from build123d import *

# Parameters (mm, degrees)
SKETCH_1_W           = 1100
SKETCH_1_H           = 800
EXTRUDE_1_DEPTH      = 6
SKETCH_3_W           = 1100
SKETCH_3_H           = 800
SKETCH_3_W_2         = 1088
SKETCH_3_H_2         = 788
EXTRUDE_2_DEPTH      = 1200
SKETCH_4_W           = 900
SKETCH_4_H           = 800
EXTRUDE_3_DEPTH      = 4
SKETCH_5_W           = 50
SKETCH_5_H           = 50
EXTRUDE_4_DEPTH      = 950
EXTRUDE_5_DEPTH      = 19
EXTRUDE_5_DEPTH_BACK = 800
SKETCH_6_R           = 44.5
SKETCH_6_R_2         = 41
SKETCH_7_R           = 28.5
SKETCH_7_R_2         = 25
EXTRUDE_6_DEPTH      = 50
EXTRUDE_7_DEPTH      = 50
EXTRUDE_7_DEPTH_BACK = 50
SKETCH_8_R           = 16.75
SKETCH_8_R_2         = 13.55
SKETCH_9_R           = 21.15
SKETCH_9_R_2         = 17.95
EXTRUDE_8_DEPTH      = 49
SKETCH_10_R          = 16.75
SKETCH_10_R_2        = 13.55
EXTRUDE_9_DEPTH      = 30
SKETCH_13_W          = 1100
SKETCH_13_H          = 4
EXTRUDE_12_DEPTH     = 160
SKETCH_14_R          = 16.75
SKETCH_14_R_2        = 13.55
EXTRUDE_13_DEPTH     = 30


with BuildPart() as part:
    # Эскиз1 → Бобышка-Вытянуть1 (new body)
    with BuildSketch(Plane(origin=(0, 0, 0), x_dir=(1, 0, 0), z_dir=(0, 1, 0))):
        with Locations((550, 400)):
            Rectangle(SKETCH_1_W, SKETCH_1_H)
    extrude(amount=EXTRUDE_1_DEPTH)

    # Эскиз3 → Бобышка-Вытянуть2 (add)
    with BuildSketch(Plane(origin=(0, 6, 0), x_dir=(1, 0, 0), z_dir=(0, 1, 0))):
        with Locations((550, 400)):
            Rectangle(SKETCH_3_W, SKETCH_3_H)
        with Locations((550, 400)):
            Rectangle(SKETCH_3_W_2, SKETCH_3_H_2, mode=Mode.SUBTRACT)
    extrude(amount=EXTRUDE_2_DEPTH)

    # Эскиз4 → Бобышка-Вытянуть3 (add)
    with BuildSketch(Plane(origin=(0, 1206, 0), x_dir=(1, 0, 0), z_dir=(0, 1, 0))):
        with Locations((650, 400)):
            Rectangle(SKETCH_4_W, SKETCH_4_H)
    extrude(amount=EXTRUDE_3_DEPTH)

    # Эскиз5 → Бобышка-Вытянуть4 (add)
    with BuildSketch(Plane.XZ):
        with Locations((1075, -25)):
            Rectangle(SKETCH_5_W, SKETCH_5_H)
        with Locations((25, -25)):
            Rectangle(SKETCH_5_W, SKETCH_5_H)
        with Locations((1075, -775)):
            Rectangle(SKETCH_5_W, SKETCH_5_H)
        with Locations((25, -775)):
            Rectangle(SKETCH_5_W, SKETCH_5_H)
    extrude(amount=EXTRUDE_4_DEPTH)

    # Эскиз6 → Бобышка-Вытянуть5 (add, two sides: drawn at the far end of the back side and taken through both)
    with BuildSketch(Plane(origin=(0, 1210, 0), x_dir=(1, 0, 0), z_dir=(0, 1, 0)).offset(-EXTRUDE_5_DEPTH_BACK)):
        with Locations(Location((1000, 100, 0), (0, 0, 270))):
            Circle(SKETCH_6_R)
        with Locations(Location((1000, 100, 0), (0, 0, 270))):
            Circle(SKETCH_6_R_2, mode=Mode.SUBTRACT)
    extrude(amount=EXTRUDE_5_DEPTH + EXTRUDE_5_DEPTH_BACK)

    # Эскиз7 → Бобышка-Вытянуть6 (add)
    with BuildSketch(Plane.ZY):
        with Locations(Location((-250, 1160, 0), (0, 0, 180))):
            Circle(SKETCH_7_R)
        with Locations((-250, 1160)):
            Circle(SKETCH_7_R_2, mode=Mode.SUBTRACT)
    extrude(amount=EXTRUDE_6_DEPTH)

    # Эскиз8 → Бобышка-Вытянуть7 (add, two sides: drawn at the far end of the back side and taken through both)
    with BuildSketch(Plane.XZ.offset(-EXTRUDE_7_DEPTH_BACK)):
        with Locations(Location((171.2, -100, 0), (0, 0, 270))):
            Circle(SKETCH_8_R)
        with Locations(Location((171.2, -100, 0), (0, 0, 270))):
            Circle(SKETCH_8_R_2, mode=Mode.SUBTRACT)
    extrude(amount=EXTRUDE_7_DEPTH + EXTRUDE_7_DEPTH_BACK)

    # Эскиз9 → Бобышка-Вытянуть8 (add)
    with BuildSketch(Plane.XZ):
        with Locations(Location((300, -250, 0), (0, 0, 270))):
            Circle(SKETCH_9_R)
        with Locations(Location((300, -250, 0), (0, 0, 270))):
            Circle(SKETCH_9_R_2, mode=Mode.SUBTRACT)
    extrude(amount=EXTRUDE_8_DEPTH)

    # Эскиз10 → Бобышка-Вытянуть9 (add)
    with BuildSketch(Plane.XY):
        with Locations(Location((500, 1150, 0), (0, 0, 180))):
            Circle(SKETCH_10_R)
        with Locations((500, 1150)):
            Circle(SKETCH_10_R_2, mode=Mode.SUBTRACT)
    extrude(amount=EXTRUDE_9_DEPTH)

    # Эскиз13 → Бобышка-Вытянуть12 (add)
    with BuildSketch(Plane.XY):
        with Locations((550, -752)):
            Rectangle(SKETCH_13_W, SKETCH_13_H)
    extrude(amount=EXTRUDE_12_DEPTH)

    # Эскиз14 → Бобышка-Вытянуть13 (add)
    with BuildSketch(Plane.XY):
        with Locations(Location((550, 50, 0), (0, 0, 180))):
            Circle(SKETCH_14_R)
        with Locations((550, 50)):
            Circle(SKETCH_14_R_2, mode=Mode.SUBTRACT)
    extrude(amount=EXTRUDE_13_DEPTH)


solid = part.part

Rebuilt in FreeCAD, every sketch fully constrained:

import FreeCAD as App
import Part
import Sketcher
from FreeCAD import Vector

doc = App.newDocument("Part")
body = doc.addObject("PartDesign::Body", "Body")

# Sketch on XZ plane
sketch1 = body.newObject("Sketcher::SketchObject", "Sketch")
sketch1.AttachmentSupport = (doc.getObject("XZ_Plane"), [""])
sketch1.MapMode = "FlatFace"
sketch1.addGeometry([
    Part.LineSegment(Vector(0, -800, 0), Vector(0, 0, 0)),
    Part.LineSegment(Vector(0, 0, 0), Vector(1100, 0, 0)),
    Part.LineSegment(Vector(1100, 0, 0), Vector(1100, -800, 0)),
    Part.LineSegment(Vector(1100, -800, 0), Vector(0, -800, 0)),
], False)
sketch1.addConstraint([
    Sketcher.Constraint("Coincident", 0, 2, 1, 1),
    Sketcher.Constraint("Coincident", 1, 2, 2, 1),
    Sketcher.Constraint("Coincident", 2, 2, 3, 1),
    Sketcher.Constraint("Coincident", 3, 2, 0, 1),
    Sketcher.Constraint("Vertical", 0),
    Sketcher.Constraint("Horizontal", 1),
    Sketcher.Constraint("Vertical", 2),
    Sketcher.Constraint("Horizontal", 3),
    Sketcher.Constraint("Coincident", 0, 2, -1, 1),
    Sketcher.Constraint("DistanceX", 1, 1, 1, 2, 1100.0),
    Sketcher.Constraint("DistanceY", 0, 1, 0, 2, 800.0),
])
pad1 = body.newObject("PartDesign::Pad", "Pad")
pad1.Profile = sketch1
pad1.Length = 6
pad1.Reversed = True

# Sketch on XZ plane
sketch2 = body.newObject("Sketcher::SketchObject", "Sketch001")
sketch2.AttachmentSupport = (doc.getObject("XZ_Plane"), [""])
sketch2.MapMode = "FlatFace"
sketch2.AttachmentOffset = App.Placement(Vector(0, 0, -6), App.Rotation())
sketch2.addGeometry([
    Part.LineSegment(Vector(0, -800, 0), Vector(0, 0, 0)),  # 0
    Part.LineSegment(Vector(0, 0, 0), Vector(1100, 0, 0)),  # 1
    Part.LineSegment(Vector(1100, 0, 0), Vector(1100, -800, 0)),  # 2
    Part.LineSegment(Vector(1100, -800, 0), Vector(0, -800, 0)),  # 3
    Part.LineSegment(Vector(1094, -6, 0), Vector(6, -6, 0)),  # 4
    Part.LineSegment(Vector(6, -6, 0), Vector(6, -794, 0)),  # 5
    Part.LineSegment(Vector(6, -794, 0), Vector(1094, -794, 0)),  # 6
    Part.LineSegment(Vector(1094, -794, 0), Vector(1094, -6, 0)),  # 7
], False)
sketch2.addConstraint([
    Sketcher.Constraint("Coincident", 0, 2, 1, 1),
    Sketcher.Constraint("Coincident", 1, 2, 2, 1),
    Sketcher.Constraint("Coincident", 2, 2, 3, 1),
    Sketcher.Constraint("Coincident", 3, 2, 0, 1),
    Sketcher.Constraint("Coincident", 4, 2, 5, 1),
    Sketcher.Constraint("Coincident", 5, 2, 6, 1),
    Sketcher.Constraint("Coincident", 6, 2, 7, 1),
    Sketcher.Constraint("Coincident", 7, 2, 4, 1),
    Sketcher.Constraint("Vertical", 0),
    Sketcher.Constraint("Horizontal", 1),
    Sketcher.Constraint("Vertical", 2),
    Sketcher.Constraint("Horizontal", 3),
    Sketcher.Constraint("Horizontal", 4),
    Sketcher.Constraint("Vertical", 5),
    Sketcher.Constraint("Horizontal", 6),
    Sketcher.Constraint("Vertical", 7),
    Sketcher.Constraint("Coincident", 0, 2, -1, 1),
    Sketcher.Constraint("DistanceX", 1, 1, 1, 2, 1100.0),
    Sketcher.Constraint("DistanceX", 4, 2, 4, 1, 1088.0),
    Sketcher.Constraint("DistanceY", 0, 1, 0, 2, 800.0),
    Sketcher.Constraint("DistanceY", 5, 2, 5, 1, 788.0),
    Sketcher.Constraint("DistanceX", -1, 1, 4, 2, 6.0),
    Sketcher.Constraint("DistanceY", 4, 2, -1, 1, 6.0),
])
pad2 = body.newObject("PartDesign::Pad", "Pad001")
pad2.Profile = sketch2
pad2.Length = 1200
pad2.Reversed = True

# Sketch on XZ plane
sketch3 = body.newObject("Sketcher::SketchObject", "Sketch002")
sketch3.AttachmentSupport = (doc.getObject("XZ_Plane"), [""])
sketch3.MapMode = "FlatFace"
sketch3.AttachmentOffset = App.Placement(Vector(0, 0, -1206), App.Rotation())
sketch3.addGeometry([
    Part.LineSegment(Vector(200, -800, 0), Vector(200, 0, 0)),
    Part.LineSegment(Vector(200, 0, 0), Vector(1100, 0, 0)),
    Part.LineSegment(Vector(1100, 0, 0), Vector(1100, -800, 0)),
    Part.LineSegment(Vector(1100, -800, 0), Vector(200, -800, 0)),
], False)
sketch3.addConstraint([
    Sketcher.Constraint("Coincident", 0, 2, 1, 1),
    Sketcher.Constraint("Coincident", 1, 2, 2, 1),
    Sketcher.Constraint("Coincident", 2, 2, 3, 1),
    Sketcher.Constraint("Coincident", 3, 2, 0, 1),
    Sketcher.Constraint("Vertical", 0),
    Sketcher.Constraint("Horizontal", 1),
    Sketcher.Constraint("Vertical", 2),
    Sketcher.Constraint("Horizontal", 3),
    Sketcher.Constraint("PointOnObject", 0, 2, -1),
    Sketcher.Constraint("DistanceX", 1, 1, 1, 2, 900.0),
    Sketcher.Constraint("DistanceY", 0, 1, 0, 2, 800.0),
    Sketcher.Constraint("DistanceX", -1, 1, 0, 2, 200.0),
])
pad3 = body.newObject("PartDesign::Pad", "Pad002")
pad3.Profile = sketch3
pad3.Length = 4
pad3.Reversed = True

# Sketch on XZ plane
sketch4 = body.newObject("Sketcher::SketchObject", "Sketch003")
sketch4.AttachmentSupport = (doc.getObject("XZ_Plane"), [""])
sketch4.MapMode = "FlatFace"
sketch4.addGeometry([
    Part.LineSegment(Vector(1050, 0, 0), Vector(1050, -50, 0)),  # 0
    Part.LineSegment(Vector(1050, -50, 0), Vector(1100, -50, 0)),  # 1
    Part.LineSegment(Vector(1100, -50, 0), Vector(1100, 0, 0)),  # 2
    Part.LineSegment(Vector(1100, 0, 0), Vector(1050, 0, 0)),  # 3
    Part.LineSegment(Vector(0, 0, 0), Vector(0, -50, 0)),  # 4
    Part.LineSegment(Vector(0, -50, 0), Vector(50, -50, 0)),  # 5
    Part.LineSegment(Vector(50, -50, 0), Vector(50, 0, 0)),  # 6
    Part.LineSegment(Vector(50, 0, 0), Vector(0, 0, 0)),  # 7
    Part.LineSegment(Vector(1050, -750, 0), Vector(1050, -800, 0)),  # 8
    Part.LineSegment(Vector(1050, -800, 0), Vector(1100, -800, 0)),  # 9
    Part.LineSegment(Vector(1100, -800, 0), Vector(1100, -750, 0)),  # 10
    Part.LineSegment(Vector(1100, -750, 0), Vector(1050, -750, 0)),  # 11
    Part.LineSegment(Vector(0, -750, 0), Vector(0, -800, 0)),  # 12
    Part.LineSegment(Vector(0, -800, 0), Vector(50, -800, 0)),  # 13
    Part.LineSegment(Vector(50, -800, 0), Vector(50, -750, 0)),  # 14
    Part.LineSegment(Vector(50, -750, 0), Vector(0, -750, 0)),  # 15
], False)
sketch4.addConstraint([
    Sketcher.Constraint("Coincident", 0, 2, 1, 1),
    Sketcher.Constraint("Coincident", 1, 2, 2, 1),
    Sketcher.Constraint("Coincident", 2, 2, 3, 1),
    Sketcher.Constraint("Coincident", 3, 2, 0, 1),
    Sketcher.Constraint("Coincident", 4, 2, 5, 1),
    Sketcher.Constraint("Coincident", 5, 2, 6, 1),
    Sketcher.Constraint("Coincident", 6, 2, 7, 1),
    Sketcher.Constraint("Coincident", 7, 2, 4, 1),
    Sketcher.Constraint("Coincident", 8, 2, 9, 1),
    Sketcher.Constraint("Coincident", 9, 2, 10, 1),
    Sketcher.Constraint("Coincident", 10, 2, 11, 1),
    Sketcher.Constraint("Coincident", 11, 2, 8, 1),
    Sketcher.Constraint("Coincident", 12, 2, 13, 1),
    Sketcher.Constraint("Coincident", 13, 2, 14, 1),
    Sketcher.Constraint("Coincident", 14, 2, 15, 1),
    Sketcher.Constraint("Coincident", 15, 2, 12, 1),
    Sketcher.Constraint("Vertical", 0),
    Sketcher.Constraint("Horizontal", 1),
    Sketcher.Constraint("Vertical", 2),
    Sketcher.Constraint("Horizontal", 3),
    Sketcher.Constraint("Vertical", 4),
    Sketcher.Constraint("Horizontal", 5),
    Sketcher.Constraint("Vertical", 6),
    Sketcher.Constraint("Horizontal", 7),
    Sketcher.Constraint("Vertical", 8),
    Sketcher.Constraint("Horizontal", 9),
    Sketcher.Constraint("Vertical", 10),
    Sketcher.Constraint("Horizontal", 11),
    Sketcher.Constraint("Vertical", 12),
    Sketcher.Constraint("Horizontal", 13),
    Sketcher.Constraint("Vertical", 14),
    Sketcher.Constraint("Horizontal", 15),
    Sketcher.Constraint("Coincident", 7, 2, -1, 1),
    Sketcher.Constraint("PointOnObject", 2, 2, -1),
    Sketcher.Constraint("PointOnObject", 12, 2, -2),
    Sketcher.Constraint("Horizontal", 1, 2, 4, 2),
    Sketcher.Constraint("Horizontal", 9, 2, 12, 2),
    Sketcher.Constraint("Horizontal", 11, 2, 14, 2),
    Sketcher.Constraint("Vertical", 3, 2, 8, 2),
    Sketcher.Constraint("Vertical", 2, 2, 9, 2),
    Sketcher.Constraint("Vertical", 6, 2, 13, 2),
    Sketcher.Constraint("Equal", 3, 5),
    Sketcher.Constraint("Equal", 15, 0),
    Sketcher.Constraint("Equal", 6, 8),
    Sketcher.Constraint("DistanceX", 1, 1, 1, 2, 50.0),
    Sketcher.Constraint("DistanceX", -1, 1, 0, 2, 1050.0),
    Sketcher.Constraint("DistanceY", 8, 2, -1, 1, 800.0),
])
pad4 = body.newObject("PartDesign::Pad", "Pad003")
pad4.Profile = sketch4
pad4.Length = 950

# Sketch on XZ plane
sketch5 = body.newObject("Sketcher::SketchObject", "Sketch004")
sketch5.AttachmentSupport = (doc.getObject("XZ_Plane"), [""])
sketch5.MapMode = "FlatFace"
sketch5.AttachmentOffset = App.Placement(Vector(0, 0, -1210), App.Rotation())
sketch5.addGeometry([
    Part.Circle(Vector(1000, -100, 0), Vector(0, 0, 1), 44),
    Part.Circle(Vector(1000, -100, 0), Vector(0, 0, 1), 41),
], False)
sketch5.addConstraint([
    Sketcher.Constraint("Coincident", 1, 3, 0, 3),
    Sketcher.Constraint("Diameter", 0, 89.0),
    Sketcher.Constraint("Diameter", 1, 82.0),
    Sketcher.Constraint("DistanceX", -1, 1, 0, 3, 1000.0),
    Sketcher.Constraint("DistanceY", 0, 3, -1, 1, 100.0),
])
pad5 = body.newObject("PartDesign::Pad", "Pad004")
pad5.Profile = sketch5
pad5.Type = "TwoLengths"
pad5.Length = 19
pad5.Length2 = 800
pad5.Reversed = True

# Sketch on YZ plane
sketch6 = body.newObject("Sketcher::SketchObject", "Sketch005")
sketch6.AttachmentSupport = (doc.getObject("YZ_Plane"), [""])
sketch6.MapMode = "FlatFace"
sketch6.addGeometry([
    Part.Circle(Vector(1160, -250, 0), Vector(0, 0, 1), 28),
    Part.Circle(Vector(1160, -250, 0), Vector(0, 0, 1), 25),
], False)
sketch6.addConstraint([
    Sketcher.Constraint("Coincident", 1, 3, 0, 3),
    Sketcher.Constraint("Diameter", 0, 57.0),
    Sketcher.Constraint("Diameter", 1, 50.0),
    Sketcher.Constraint("DistanceX", -1, 1, 0, 3, 1160.0),
    Sketcher.Constraint("DistanceY", 0, 3, -1, 1, 250.0),
])
pad6 = body.newObject("PartDesign::Pad", "Pad005")
pad6.Profile = sketch6
pad6.Length = 50
pad6.Reversed = True

# Sketch on XZ plane
sketch7 = body.newObject("Sketcher::SketchObject", "Sketch006")
sketch7.AttachmentSupport = (doc.getObject("XZ_Plane"), [""])
sketch7.MapMode = "FlatFace"
sketch7.addGeometry([
    Part.Circle(Vector(171, -100, 0), Vector(0, 0, 1), 17),
    Part.Circle(Vector(171, -100, 0), Vector(0, 0, 1), 14),
], False)
sketch7.addConstraint([
    Sketcher.Constraint("Coincident", 1, 3, 0, 3),
    Sketcher.Constraint("Diameter", 0, 33.5),
    Sketcher.Constraint("Diameter", 1, 27.1),
    Sketcher.Constraint("DistanceY", 0, 3, -1, 1, 100.0),
    Sketcher.Constraint("DistanceX", -1, 1, 0, 3, 171.2),
])
pad7 = body.newObject("PartDesign::Pad", "Pad006")
pad7.Profile = sketch7
pad7.Type = "TwoLengths"
pad7.Length = 50
pad7.Length2 = 50

# Sketch on XZ plane
sketch8 = body.newObject("Sketcher::SketchObject", "Sketch007")
sketch8.AttachmentSupport = (doc.getObject("XZ_Plane"), [""])
sketch8.MapMode = "FlatFace"
sketch8.addGeometry([
    Part.Circle(Vector(300, -250, 0), Vector(0, 0, 1), 21),
    Part.Circle(Vector(300, -250, 0), Vector(0, 0, 1), 18),
], False)
sketch8.addConstraint([
    Sketcher.Constraint("Coincident", 1, 3, 0, 3),
    Sketcher.Constraint("Diameter", 0, 42.3),
    Sketcher.Constraint("Diameter", 1, 35.9),
    Sketcher.Constraint("DistanceX", -1, 1, 0, 3, 300.0),
    Sketcher.Constraint("DistanceY", 0, 3, -1, 1, 250.0),
])
pad8 = body.newObject("PartDesign::Pad", "Pad007")
pad8.Profile = sketch8
pad8.Length = 49

# Sketch on XY plane
sketch9 = body.newObject("Sketcher::SketchObject", "Sketch008")
sketch9.AttachmentSupport = (doc.getObject("XY_Plane"), [""])
sketch9.MapMode = "FlatFace"
sketch9.addGeometry([
    Part.Circle(Vector(500, 1150, 0), Vector(0, 0, 1), 17),
    Part.Circle(Vector(500, 1150, 0), Vector(0, 0, 1), 14),
], False)
sketch9.addConstraint([
    Sketcher.Constraint("Coincident", 1, 3, 0, 3),
    Sketcher.Constraint("Diameter", 0, 33.5),
    Sketcher.Constraint("Diameter", 1, 27.1),
    Sketcher.Constraint("DistanceX", -1, 1, 0, 3, 500.0),
    Sketcher.Constraint("DistanceY", -1, 1, 0, 3, 1150.0),
])
pad9 = body.newObject("PartDesign::Pad", "Pad008")
pad9.Profile = sketch9
pad9.Length = 30

# Sketch on XY plane
sketch10 = body.newObject("Sketcher::SketchObject", "Sketch009")
sketch10.AttachmentSupport = (doc.getObject("XY_Plane"), [""])
sketch10.MapMode = "FlatFace"
sketch10.addGeometry([
    Part.LineSegment(Vector(0, -750, 0), Vector(0, -754, 0)),
    Part.LineSegment(Vector(0, -754, 0), Vector(1100, -754, 0)),
    Part.LineSegment(Vector(1100, -754, 0), Vector(1100, -750, 0)),
    Part.LineSegment(Vector(1100, -750, 0), Vector(0, -750, 0)),
], False)
sketch10.addConstraint([
    Sketcher.Constraint("Coincident", 0, 2, 1, 1),
    Sketcher.Constraint("Coincident", 1, 2, 2, 1),
    Sketcher.Constraint("Coincident", 2, 2, 3, 1),
    Sketcher.Constraint("Coincident", 3, 2, 0, 1),
    Sketcher.Constraint("Vertical", 0),
    Sketcher.Constraint("Horizontal", 1),
    Sketcher.Constraint("Vertical", 2),
    Sketcher.Constraint("Horizontal", 3),
    Sketcher.Constraint("PointOnObject", 0, 2, -2),
    Sketcher.Constraint("DistanceX", 1, 1, 1, 2, 1100.0),
    Sketcher.Constraint("DistanceY", 0, 2, 0, 1, 4.0),
    Sketcher.Constraint("DistanceY", 0, 2, -1, 1, 754.0),
])
pad10 = body.newObject("PartDesign::Pad", "Pad009")
pad10.Profile = sketch10
pad10.Length = 160

# Sketch on XY plane
sketch11 = body.newObject("Sketcher::SketchObject", "Sketch010")
sketch11.AttachmentSupport = (doc.getObject("XY_Plane"), [""])
sketch11.MapMode = "FlatFace"
sketch11.addGeometry([
    Part.Circle(Vector(550, 50, 0), Vector(0, 0, 1), 17),
    Part.Circle(Vector(550, 50, 0), Vector(0, 0, 1), 14),
], False)
sketch11.addConstraint([
    Sketcher.Constraint("Coincident", 1, 3, 0, 3),
    Sketcher.Constraint("Diameter", 0, 33.5),
    Sketcher.Constraint("Diameter", 1, 27.1),
    Sketcher.Constraint("DistanceX", -1, 1, 0, 3, 550.0),
    Sketcher.Constraint("DistanceY", -1, 1, 0, 3, 50.0),
])
pad11 = body.newObject("PartDesign::Pad", "Pad010")
pad11.Profile = sketch11
pad11.Length = 30

doc.recompute()
